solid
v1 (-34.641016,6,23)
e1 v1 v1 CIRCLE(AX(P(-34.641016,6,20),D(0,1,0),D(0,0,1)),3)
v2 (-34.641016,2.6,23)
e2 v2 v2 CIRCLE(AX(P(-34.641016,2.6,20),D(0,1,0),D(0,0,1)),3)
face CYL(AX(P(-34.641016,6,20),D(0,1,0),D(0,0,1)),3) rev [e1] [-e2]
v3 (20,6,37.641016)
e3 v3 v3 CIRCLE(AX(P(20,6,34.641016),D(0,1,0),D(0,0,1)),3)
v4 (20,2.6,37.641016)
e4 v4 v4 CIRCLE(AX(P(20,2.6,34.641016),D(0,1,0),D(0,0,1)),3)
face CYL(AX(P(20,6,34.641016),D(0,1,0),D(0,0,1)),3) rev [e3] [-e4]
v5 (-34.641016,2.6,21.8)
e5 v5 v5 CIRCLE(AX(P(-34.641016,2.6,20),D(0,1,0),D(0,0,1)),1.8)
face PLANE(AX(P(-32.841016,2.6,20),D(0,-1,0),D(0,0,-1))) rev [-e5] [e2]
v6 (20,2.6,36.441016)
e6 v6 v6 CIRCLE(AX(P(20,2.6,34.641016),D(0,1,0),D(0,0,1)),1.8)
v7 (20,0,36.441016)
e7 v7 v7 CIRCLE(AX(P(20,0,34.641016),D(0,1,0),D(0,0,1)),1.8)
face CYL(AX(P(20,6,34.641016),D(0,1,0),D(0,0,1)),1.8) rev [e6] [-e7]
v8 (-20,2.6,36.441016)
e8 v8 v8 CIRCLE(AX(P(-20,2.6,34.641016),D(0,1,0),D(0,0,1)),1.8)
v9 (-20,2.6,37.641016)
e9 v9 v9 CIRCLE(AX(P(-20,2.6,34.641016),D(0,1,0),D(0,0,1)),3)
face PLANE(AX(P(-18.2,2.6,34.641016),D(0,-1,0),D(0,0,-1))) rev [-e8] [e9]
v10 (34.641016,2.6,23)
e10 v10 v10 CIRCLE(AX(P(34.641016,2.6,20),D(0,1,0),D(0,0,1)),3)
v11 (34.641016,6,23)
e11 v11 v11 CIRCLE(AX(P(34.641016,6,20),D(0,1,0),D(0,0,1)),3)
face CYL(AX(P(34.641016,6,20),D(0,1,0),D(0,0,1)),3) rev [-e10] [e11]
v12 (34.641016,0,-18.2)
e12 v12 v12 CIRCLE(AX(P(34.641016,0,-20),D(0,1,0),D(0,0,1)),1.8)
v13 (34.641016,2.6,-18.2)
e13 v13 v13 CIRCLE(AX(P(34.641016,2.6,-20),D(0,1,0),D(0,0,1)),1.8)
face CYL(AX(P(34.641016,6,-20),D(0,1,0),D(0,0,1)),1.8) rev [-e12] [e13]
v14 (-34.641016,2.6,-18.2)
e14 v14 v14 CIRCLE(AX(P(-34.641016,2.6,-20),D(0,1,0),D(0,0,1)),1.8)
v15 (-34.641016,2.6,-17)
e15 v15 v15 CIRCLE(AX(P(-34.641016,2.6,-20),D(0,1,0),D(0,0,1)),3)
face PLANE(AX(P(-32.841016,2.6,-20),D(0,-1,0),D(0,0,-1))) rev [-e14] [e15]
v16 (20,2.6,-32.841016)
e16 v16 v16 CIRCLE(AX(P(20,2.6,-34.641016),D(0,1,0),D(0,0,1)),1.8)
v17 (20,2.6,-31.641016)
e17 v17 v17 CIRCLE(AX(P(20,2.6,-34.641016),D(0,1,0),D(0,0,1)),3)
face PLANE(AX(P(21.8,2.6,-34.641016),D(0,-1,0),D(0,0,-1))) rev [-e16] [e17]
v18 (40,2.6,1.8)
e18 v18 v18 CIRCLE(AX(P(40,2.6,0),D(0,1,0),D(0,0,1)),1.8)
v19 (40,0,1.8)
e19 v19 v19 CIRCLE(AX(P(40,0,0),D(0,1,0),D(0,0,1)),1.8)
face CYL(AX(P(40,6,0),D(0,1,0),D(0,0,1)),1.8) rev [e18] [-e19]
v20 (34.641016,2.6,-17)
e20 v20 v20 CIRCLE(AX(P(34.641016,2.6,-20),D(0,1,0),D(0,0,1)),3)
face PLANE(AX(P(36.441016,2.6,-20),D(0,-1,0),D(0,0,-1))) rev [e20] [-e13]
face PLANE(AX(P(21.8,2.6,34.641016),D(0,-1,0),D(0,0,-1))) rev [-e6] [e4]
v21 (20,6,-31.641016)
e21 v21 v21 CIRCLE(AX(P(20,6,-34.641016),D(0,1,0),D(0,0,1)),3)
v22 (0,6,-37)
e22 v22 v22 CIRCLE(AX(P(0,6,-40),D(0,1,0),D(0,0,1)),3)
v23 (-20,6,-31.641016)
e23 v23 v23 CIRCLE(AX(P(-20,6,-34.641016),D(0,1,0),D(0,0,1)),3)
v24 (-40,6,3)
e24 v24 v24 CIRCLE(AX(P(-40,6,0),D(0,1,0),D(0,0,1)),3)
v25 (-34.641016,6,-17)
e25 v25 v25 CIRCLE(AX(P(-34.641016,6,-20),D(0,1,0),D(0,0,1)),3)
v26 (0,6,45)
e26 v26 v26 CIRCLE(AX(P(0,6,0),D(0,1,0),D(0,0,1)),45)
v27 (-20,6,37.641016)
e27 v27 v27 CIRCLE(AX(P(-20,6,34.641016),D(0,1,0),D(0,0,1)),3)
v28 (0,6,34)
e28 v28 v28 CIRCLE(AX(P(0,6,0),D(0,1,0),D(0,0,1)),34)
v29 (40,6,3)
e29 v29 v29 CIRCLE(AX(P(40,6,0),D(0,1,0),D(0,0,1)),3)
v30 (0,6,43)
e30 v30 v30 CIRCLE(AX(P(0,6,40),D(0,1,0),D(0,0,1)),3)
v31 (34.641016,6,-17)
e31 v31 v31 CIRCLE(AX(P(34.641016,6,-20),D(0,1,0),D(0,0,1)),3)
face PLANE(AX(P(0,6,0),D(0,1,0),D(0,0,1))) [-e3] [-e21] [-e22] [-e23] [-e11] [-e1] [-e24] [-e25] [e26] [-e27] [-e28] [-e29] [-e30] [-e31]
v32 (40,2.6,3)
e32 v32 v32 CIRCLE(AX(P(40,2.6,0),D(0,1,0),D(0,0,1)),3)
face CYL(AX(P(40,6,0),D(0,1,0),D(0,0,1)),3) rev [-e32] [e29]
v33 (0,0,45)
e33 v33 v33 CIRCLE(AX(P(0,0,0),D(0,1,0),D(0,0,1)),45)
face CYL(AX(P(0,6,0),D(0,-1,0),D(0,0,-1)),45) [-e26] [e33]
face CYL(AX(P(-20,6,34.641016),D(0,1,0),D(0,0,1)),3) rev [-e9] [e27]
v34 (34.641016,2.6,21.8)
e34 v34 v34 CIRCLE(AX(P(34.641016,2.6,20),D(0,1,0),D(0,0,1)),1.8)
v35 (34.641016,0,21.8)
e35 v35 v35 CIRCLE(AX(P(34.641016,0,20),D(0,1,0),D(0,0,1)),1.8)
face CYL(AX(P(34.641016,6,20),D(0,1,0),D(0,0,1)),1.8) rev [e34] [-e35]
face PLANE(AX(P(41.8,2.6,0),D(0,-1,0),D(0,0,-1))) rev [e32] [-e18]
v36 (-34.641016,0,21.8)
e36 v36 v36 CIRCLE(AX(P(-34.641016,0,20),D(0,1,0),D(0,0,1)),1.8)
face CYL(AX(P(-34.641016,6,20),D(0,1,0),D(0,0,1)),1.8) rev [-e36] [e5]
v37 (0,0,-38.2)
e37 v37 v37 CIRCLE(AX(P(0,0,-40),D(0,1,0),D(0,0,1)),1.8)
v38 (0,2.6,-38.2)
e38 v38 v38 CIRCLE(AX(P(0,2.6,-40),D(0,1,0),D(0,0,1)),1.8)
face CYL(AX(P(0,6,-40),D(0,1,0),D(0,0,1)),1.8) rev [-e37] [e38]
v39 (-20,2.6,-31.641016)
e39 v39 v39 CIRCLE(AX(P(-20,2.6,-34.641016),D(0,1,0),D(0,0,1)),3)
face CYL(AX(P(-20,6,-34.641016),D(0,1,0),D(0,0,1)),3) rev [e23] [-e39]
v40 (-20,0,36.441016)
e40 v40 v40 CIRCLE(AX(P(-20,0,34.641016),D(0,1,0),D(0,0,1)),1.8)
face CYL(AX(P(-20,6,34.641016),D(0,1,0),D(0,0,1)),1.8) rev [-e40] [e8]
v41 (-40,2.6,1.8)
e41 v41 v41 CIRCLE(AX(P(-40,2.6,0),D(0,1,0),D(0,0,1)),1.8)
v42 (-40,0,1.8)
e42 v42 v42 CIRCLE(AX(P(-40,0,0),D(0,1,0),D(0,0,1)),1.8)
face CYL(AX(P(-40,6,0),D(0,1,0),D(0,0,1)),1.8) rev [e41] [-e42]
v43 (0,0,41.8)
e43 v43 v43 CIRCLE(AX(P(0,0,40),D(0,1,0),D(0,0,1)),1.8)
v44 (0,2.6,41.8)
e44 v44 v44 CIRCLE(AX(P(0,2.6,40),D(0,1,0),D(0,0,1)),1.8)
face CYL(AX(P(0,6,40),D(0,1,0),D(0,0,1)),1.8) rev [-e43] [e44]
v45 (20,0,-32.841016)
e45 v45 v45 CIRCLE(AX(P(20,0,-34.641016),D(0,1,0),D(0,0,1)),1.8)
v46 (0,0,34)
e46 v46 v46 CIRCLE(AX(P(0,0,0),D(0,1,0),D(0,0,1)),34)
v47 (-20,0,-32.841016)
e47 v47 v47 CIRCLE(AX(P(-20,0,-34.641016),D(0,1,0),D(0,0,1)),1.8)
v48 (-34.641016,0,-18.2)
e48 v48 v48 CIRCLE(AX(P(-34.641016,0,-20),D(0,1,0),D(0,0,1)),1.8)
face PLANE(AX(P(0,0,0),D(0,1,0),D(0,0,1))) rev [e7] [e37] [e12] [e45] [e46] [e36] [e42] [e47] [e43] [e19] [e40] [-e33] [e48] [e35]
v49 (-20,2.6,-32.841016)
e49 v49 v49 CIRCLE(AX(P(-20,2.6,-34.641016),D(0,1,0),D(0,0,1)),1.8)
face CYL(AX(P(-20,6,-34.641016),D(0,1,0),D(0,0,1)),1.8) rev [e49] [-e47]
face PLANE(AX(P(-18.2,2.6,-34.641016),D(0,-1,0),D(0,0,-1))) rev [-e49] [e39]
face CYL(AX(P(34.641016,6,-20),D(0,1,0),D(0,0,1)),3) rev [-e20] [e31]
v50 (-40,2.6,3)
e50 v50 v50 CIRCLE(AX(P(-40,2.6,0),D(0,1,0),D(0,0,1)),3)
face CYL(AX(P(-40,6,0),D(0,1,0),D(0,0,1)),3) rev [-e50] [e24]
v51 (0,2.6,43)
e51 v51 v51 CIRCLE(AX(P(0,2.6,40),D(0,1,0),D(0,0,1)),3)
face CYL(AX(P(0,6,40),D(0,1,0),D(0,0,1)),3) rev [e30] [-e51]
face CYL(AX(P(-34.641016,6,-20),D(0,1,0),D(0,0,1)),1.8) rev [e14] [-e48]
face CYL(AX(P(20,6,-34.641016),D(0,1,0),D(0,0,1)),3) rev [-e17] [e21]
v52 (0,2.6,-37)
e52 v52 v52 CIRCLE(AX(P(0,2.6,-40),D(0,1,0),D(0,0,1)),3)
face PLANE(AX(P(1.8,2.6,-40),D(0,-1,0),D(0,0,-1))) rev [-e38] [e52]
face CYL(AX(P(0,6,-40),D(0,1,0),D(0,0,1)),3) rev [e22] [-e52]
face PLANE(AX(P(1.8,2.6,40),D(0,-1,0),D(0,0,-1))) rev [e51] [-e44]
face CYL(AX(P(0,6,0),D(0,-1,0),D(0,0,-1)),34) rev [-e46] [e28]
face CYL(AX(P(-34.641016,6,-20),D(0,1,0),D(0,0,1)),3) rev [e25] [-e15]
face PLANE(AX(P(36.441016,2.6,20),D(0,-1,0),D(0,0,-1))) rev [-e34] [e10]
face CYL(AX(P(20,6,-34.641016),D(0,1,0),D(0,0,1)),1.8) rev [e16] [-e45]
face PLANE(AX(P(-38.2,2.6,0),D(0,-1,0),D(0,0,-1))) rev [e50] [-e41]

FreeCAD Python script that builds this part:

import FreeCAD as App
import Part
import Sketcher

doc = App.newDocument("Part")
body = doc.addObject("PartDesign::Body", "Body")

sketch1 = doc.addObject("Sketcher::SketchObject", "Sketch")
body.addObject(sketch1)
sketch1.AttachmentSupport = (doc.XZ_Plane, [""])
sketch1.MapMode = "FlatFace"
sketch1.addGeometry([
    Part.Circle(App.Vector(0, 0, 0), App.Vector(0, 0, 1), 45),
    Part.Circle(App.Vector(0, 0, 0), App.Vector(0, 0, 1), 34),
], False)
sketch1.addConstraint([
    Sketcher.Constraint("Coincident", 0, 3, -1, 1),
    Sketcher.Constraint("Coincident", 1, 3, -1, 1),
    Sketcher.Constraint("Diameter", 0, 90.0),
    Sketcher.Constraint("Diameter", 1, 68.0),
])
pad1 = doc.addObject("PartDesign::Pad", "Pad")
body.addObject(pad1)
pad1.Profile = sketch1
pad1.Length = 6
pad1.Reversed = True

sketch2 = doc.addObject("Sketcher::SketchObject", "Sketch001")
body.addObject(sketch2)
sketch2.AttachmentSupport = (doc.XZ_Plane, [""])
sketch2.MapMode = "FlatFace"
sketch2.AttachmentOffset = App.Placement(App.Vector(0, 0, -6), App.Rotation())
sketch2.addGeometry(Part.Circle(App.Vector(0, -40, 0), App.Vector(0, 0, 1), 1.8), False)
sketch2.addConstraint([
    Sketcher.Constraint("PointOnObject", 0, 3, -2),
    Sketcher.Constraint("Diameter", 0, 3.6),
    Sketcher.Constraint("DistanceY", 0, 3, -1, 1, 40.0),
])
doc.recompute()
hole = doc.addObject("PartDesign::Hole", "Hole")
body.addObject(hole)
hole.Profile = sketch2
hole.ThreadType = "None"
hole.Diameter = 3.6
hole.DepthType = "ThroughAll"
hole.HoleCutType = "Counterbore"
hole.HoleCutDiameter = 6
hole.HoleCutDepth = 3.4
hole.Reversed = True
doc.recompute()

polarpattern = doc.addObject("PartDesign::PolarPattern", "PolarPattern")
body.addObject(polarpattern)
polarpattern.Originals = [hole]
polarpattern.Axis = (doc.Y_Axis, [""])
polarpattern.Angle = 360
polarpattern.Occurrences = 12
body.Tip = polarpattern

doc.recompute()
